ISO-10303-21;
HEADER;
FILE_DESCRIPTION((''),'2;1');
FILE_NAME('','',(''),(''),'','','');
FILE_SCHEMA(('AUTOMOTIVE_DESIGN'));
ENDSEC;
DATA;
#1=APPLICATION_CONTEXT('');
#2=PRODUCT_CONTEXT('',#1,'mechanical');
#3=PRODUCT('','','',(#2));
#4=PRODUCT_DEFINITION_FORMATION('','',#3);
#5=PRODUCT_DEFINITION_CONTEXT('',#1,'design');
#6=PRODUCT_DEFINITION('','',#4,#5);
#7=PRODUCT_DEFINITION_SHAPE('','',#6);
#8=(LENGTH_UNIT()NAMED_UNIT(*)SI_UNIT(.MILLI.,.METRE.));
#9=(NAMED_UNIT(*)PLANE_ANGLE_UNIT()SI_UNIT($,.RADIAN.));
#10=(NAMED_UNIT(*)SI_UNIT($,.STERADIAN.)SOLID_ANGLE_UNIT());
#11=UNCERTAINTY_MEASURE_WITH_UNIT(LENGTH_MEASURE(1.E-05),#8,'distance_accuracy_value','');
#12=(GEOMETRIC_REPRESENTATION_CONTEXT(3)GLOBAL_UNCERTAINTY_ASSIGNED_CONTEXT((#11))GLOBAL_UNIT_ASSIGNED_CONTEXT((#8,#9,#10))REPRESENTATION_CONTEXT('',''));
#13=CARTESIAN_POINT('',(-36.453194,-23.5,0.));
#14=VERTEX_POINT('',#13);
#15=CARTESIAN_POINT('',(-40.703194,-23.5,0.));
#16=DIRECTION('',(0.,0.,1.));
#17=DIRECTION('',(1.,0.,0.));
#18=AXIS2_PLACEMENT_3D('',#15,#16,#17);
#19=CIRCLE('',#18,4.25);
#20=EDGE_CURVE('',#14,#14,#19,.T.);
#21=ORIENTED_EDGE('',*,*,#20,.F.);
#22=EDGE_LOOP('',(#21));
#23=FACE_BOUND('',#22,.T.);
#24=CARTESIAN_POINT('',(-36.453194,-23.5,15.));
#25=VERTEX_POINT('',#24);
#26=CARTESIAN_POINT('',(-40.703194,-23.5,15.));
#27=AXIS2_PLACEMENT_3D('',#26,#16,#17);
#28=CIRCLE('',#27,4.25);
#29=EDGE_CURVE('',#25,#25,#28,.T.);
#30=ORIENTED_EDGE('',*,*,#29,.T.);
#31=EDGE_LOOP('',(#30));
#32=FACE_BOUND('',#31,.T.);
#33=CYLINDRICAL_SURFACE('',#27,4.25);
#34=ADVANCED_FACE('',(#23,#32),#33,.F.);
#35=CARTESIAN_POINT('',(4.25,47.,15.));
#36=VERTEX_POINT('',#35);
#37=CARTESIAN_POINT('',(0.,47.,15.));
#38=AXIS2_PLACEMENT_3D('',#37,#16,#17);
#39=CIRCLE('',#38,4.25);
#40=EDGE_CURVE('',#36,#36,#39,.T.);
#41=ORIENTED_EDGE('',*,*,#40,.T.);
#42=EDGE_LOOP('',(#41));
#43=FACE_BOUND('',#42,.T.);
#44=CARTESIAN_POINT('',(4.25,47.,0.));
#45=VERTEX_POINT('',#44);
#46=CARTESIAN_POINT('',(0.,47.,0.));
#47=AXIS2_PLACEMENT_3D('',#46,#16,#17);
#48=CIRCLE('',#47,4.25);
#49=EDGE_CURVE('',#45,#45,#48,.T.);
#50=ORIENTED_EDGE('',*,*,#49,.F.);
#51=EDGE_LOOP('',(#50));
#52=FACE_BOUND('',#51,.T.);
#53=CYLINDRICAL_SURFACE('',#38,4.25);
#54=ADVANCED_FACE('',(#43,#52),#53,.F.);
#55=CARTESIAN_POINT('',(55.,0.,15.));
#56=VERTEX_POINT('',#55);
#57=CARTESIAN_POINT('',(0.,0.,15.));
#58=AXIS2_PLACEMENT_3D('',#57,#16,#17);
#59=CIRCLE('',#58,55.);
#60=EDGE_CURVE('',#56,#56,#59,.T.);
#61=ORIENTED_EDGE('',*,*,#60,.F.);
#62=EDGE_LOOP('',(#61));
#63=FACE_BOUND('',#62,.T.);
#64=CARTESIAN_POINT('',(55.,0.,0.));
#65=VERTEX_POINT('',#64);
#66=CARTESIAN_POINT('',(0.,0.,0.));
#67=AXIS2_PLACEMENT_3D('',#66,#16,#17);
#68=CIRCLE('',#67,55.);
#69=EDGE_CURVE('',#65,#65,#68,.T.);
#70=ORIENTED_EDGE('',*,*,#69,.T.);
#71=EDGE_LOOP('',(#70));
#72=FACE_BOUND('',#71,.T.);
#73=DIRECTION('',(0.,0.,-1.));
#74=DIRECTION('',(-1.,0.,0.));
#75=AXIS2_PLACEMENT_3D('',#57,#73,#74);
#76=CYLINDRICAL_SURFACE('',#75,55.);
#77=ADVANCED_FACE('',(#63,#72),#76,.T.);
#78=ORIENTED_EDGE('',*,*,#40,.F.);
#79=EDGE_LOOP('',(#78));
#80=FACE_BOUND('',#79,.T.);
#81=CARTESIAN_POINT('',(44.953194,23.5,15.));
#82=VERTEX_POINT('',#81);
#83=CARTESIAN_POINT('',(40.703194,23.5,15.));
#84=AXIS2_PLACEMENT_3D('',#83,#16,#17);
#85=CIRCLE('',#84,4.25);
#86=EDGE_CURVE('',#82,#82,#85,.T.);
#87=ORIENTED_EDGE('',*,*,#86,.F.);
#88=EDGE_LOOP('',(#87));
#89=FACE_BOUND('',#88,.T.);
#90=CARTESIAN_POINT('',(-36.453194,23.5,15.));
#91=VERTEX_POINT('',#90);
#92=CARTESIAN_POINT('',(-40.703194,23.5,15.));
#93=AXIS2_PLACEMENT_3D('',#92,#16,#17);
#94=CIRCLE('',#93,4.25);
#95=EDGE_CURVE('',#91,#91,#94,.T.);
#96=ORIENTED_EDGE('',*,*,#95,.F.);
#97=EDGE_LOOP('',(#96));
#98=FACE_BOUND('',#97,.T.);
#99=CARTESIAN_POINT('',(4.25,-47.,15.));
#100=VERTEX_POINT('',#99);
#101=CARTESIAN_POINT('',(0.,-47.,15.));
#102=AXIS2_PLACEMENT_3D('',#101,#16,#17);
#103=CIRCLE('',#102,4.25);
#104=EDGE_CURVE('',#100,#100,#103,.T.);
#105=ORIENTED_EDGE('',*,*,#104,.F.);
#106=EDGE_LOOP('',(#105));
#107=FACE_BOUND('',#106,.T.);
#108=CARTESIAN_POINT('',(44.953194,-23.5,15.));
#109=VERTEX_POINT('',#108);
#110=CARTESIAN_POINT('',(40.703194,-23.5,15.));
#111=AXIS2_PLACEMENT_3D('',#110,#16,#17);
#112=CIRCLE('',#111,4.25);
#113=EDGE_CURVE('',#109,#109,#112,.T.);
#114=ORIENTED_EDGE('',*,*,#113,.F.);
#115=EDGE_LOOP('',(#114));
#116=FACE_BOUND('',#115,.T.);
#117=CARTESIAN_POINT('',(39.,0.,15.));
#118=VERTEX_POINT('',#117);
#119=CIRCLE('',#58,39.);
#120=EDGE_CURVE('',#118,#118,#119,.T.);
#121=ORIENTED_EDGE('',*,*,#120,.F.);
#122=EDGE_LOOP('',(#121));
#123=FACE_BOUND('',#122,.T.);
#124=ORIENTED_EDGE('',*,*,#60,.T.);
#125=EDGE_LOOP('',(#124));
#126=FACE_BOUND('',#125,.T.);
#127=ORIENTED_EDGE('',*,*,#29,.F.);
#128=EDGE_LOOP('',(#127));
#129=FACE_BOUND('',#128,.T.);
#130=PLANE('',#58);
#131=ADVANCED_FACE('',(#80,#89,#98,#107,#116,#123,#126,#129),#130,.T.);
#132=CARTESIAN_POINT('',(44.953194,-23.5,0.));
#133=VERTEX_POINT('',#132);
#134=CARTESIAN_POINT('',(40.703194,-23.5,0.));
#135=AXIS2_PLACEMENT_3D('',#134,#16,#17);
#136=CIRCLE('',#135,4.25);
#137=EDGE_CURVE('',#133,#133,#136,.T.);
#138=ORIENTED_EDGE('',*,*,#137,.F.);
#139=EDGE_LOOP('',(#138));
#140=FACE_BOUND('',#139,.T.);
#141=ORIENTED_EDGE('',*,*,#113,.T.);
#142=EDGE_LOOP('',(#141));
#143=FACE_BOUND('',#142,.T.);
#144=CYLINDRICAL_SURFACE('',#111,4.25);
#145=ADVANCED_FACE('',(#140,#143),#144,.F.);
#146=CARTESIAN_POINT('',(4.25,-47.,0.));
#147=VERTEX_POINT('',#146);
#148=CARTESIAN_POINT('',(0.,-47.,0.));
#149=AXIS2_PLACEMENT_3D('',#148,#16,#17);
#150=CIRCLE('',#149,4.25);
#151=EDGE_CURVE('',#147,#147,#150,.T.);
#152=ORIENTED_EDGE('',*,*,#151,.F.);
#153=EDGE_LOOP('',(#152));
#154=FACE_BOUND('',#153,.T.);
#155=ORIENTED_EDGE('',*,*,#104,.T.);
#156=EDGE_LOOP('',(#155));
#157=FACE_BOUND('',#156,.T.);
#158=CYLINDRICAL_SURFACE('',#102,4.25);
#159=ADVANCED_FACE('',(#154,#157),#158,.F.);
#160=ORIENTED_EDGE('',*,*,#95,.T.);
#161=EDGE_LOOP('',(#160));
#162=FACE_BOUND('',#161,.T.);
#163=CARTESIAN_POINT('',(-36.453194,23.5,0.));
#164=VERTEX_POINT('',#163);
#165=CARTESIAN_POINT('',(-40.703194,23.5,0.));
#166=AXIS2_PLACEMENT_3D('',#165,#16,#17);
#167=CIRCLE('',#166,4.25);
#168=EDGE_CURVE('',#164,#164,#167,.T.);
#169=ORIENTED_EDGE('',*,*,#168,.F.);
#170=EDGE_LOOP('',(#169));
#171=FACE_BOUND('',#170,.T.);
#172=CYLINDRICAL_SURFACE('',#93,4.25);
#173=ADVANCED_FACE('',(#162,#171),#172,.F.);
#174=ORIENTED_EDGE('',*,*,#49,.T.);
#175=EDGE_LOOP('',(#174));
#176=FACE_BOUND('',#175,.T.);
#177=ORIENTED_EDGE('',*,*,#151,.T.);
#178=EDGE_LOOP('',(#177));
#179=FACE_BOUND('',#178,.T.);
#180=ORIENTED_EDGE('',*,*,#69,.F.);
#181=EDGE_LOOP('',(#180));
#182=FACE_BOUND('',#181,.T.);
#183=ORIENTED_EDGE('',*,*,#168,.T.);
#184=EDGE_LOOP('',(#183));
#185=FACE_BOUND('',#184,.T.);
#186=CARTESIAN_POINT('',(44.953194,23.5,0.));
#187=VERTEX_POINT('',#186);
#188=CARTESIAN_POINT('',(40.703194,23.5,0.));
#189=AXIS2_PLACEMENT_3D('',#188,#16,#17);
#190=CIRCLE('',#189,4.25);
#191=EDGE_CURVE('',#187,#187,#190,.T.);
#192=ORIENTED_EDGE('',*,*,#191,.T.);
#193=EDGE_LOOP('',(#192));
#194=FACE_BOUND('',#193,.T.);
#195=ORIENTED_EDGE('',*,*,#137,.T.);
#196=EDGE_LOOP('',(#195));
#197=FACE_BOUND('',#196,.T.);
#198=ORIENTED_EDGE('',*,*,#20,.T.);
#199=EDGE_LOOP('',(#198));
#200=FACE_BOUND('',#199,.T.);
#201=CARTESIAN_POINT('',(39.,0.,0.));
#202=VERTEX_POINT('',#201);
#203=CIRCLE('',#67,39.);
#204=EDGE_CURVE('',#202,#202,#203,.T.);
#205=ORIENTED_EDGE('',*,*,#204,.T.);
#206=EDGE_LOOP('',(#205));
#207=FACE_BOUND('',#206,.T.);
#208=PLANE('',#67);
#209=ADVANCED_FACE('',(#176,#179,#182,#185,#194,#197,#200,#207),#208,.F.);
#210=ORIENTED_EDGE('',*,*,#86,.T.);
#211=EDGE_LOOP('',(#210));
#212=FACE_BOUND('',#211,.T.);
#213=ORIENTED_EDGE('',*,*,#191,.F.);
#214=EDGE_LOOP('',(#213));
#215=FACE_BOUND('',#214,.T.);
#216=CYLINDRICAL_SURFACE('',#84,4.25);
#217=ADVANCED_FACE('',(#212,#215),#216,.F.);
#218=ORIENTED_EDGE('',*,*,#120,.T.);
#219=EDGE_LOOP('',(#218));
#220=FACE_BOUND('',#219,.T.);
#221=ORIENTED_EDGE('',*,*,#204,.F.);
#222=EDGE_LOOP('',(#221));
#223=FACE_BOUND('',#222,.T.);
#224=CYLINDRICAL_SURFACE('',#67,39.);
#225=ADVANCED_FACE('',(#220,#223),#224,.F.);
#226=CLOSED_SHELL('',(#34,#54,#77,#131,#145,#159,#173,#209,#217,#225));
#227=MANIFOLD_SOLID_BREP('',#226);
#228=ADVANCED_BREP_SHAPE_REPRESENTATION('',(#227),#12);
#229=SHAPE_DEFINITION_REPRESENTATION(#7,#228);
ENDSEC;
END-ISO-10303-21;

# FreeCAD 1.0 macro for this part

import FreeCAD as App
import Part
import Sketcher
from FreeCAD import Vector
Q = App.Units.Quantity

doc = App.newDocument("Part")
params = doc.addObject("Spreadsheet::Sheet", "Params")
for row, (alias, value) in enumerate([
    ("sketch1_diameter", "110 mm"),
    ("pad1_length", "15 mm"),
    ("sketch2_diameter", "8.5 mm"),
    ("hole_diameter", "8.5 mm"),
    ("sketch3_diameter", "78 mm"),
], start=1):
    params.set(f"A{row}", alias)
    params.set(f"B{row}", "=" + value)
    params.setAlias(f"B{row}", alias)

body = doc.addObject("PartDesign::Body", "Body")

sketch1 = body.newObject("Sketcher::SketchObject", "Sketch")
sketch1.AttachmentSupport = (doc.getObject("XY_Plane"), [""])
sketch1.MapMode = "FlatFace"
sketch1.addGeometry(Part.Circle(Vector(0, 0, 0), Vector(0, 0, 1), 55), False)
sketch1.addConstraint([
    Sketcher.Constraint("Coincident", 0, 3, -1, 1),
    Sketcher.Constraint("Diameter", 0, Q("110 mm")),
])
sketch1.setExpression("Constraints[1]", "Params.sketch1_diameter")
pad1 = body.newObject("PartDesign::Pad", "Pad")
pad1.Profile = sketch1
pad1.setExpression("Length", "Params.pad1_length")

sketch2 = body.newObject("Sketcher::SketchObject", "Sketch001")
sketch2.AttachmentSupport = (doc.getObject("XY_Plane"), [""])
sketch2.MapMode = "FlatFace"
sketch2.AttachmentOffset = App.Placement(Vector(0, 0, 15), App.Rotation())
sketch2.addGeometry(Part.Circle(Vector(0, 47, 0), Vector(0, 0, 1), 4.2), False)
sketch2.addConstraint([
    Sketcher.Constraint("PointOnObject", 0, 3, -2),
    Sketcher.Constraint("Diameter", 0, Q("8.5 mm")),
    Sketcher.Constraint("DistanceY", -1, 1, 0, 3, Q("47 mm")),
])
sketch2.setExpression("Constraints[1]", "Params.sketch2_diameter")
doc.recompute()
hole = body.newObject("PartDesign::Hole", "Hole")
hole.Profile = sketch2
hole.ThreadType = "None"
hole.setExpression("Diameter", "Params.hole_diameter")
hole.DepthType = "ThroughAll"
doc.recompute()

polarpattern = body.newObject("PartDesign::PolarPattern", "PolarPattern")
polarpattern.Originals = [hole]
polarpattern.Axis = (doc.getObject("Z_Axis"), [""])
polarpattern.Angle = 360
polarpattern.Occurrences = 6
body.Tip = polarpattern

sketch3 = body.newObject("Sketcher::SketchObject", "Sketch002")
sketch3.AttachmentSupport = (doc.getObject("XY_Plane"), [""])
sketch3.MapMode = "FlatFace"
sketch3.AttachmentOffset = App.Placement(Vector(0, 0, 15), App.Rotation())
sketch3.addGeometry(Part.Circle(Vector(0, 0, 0), Vector(0, 0, 1), 39), False)
sketch3.addConstraint([
    Sketcher.Constraint("Coincident", 0, 3, -1, 1),
    Sketcher.Constraint("Diameter", 0, Q("78 mm")),
])
sketch3.setExpression("Constraints[1]", "Params.sketch3_diameter")
pocket1 = body.newObject("PartDesign::Pocket", "Pocket")
pocket1.Profile = sketch3
pocket1.Type = "ThroughAll"

doc.recompute()
